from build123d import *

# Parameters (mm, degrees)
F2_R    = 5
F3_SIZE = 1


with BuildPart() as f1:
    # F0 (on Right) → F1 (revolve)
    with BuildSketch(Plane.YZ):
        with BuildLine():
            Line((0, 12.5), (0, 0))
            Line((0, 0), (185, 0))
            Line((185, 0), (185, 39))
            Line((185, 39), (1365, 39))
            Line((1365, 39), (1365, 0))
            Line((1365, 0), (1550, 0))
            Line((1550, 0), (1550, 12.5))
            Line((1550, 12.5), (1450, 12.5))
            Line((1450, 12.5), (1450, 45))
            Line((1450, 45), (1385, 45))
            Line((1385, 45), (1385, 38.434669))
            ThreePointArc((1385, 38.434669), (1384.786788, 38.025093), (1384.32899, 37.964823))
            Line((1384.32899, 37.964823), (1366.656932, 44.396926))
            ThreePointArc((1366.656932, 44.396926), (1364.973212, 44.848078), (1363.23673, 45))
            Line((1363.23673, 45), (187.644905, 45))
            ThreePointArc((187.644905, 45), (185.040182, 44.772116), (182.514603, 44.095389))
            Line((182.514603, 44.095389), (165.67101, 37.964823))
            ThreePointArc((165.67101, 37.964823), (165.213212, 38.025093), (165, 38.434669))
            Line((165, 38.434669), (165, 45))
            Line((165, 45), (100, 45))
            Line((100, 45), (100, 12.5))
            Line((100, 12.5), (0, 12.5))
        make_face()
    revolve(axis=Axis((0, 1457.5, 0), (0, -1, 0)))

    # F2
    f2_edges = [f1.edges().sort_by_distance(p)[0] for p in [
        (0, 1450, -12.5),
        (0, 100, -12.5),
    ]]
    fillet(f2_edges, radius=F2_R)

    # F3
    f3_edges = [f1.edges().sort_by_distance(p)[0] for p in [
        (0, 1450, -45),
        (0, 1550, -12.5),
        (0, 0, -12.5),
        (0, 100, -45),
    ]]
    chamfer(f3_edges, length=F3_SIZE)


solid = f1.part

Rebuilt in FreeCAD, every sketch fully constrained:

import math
import FreeCAD as App
import Part
import Sketcher
from FreeCAD import Vector
Q = App.Units.Quantity


def edges_at(feature, points):
    """Names of the edges that pass closest to the given points."""
    edges = feature.Shape.Edges
    near = lambda p: min(range(len(edges)), key=lambda i: edges[i].distToShape(Part.Vertex(*p))[0])
    return sorted({f"Edge{near(p) + 1}" for p in points})

doc = App.newDocument("Part")
body = doc.addObject("PartDesign::Body", "Body")

# Sketch on YZ plane
sketch1 = doc.addObject("Sketcher::SketchObject", "Sketch")
body.addObject(sketch1)
sketch1.AttachmentSupport = (doc.YZ_Plane, [""])
sketch1.MapMode = "FlatFace"
sketch1.addGeometry(Part.LineSegment(Vector(0, 12.5, 0), Vector(0, 0, 0)), False)
sketch1.addGeometry(Part.LineSegment(Vector(0, 0, 0), Vector(185, 0, 0)), False)
sketch1.addGeometry(Part.LineSegment(Vector(185, 0, 0), Vector(185, 39, 0)), False)
sketch1.addGeometry(Part.LineSegment(Vector(185, 39, 0), Vector(1365, 39, 0)), False)
sketch1.addGeometry(Part.LineSegment(Vector(1365, 39, 0), Vector(1365, 0, 0)), False)
sketch1.addGeometry(Part.LineSegment(Vector(1365, 0, 0), Vector(1550, 0, 0)), False)
sketch1.addGeometry(Part.LineSegment(Vector(1550, 0, 0), Vector(1550, 12.5, 0)), False)
sketch1.addGeometry(Part.LineSegment(Vector(1550, 12.5, 0), Vector(1450, 12.5, 0)), False)
sketch1.addGeometry(Part.LineSegment(Vector(1450, 12.5, 0), Vector(1450, 45, 0)), False)
sketch1.addGeometry(Part.LineSegment(Vector(1450, 45, 0), Vector(1385, 45, 0)), False)
sketch1.addGeometry(Part.LineSegment(Vector(1385, 45, 0), Vector(1385, 38.43, 0)), False)
sketch1.addGeometry(Part.ArcOfCircle(Part.Circle(Vector(1384.5, 38.43, 0), Vector(0, 0, 1), 0.5), math.radians(-110), math.radians(0)), False)
sketch1.addGeometry(Part.LineSegment(Vector(1384.33, 37.96, 0), Vector(1366.66, 44.4, 0)), False)
sketch1.addGeometry(Part.ArcOfCircle(Part.Circle(Vector(1363.24, 35, 0), Vector(0, 0, 1), 10), math.radians(70), math.radians(90)), False)
sketch1.addGeometry(Part.LineSegment(Vector(1363.24, 45, 0), Vector(187.64, 45, 0)), False)
sketch1.addGeometry(Part.ArcOfCircle(Part.Circle(Vector(187.64, 30, 0), Vector(0, 0, 1), 15), math.radians(90), math.radians(110)), False)
sketch1.addGeometry(Part.LineSegment(Vector(182.51, 44.1, 0), Vector(165.67, 37.96, 0)), False)
sketch1.addGeometry(Part.ArcOfCircle(Part.Circle(Vector(165.5, 38.43, 0), Vector(0, 0, 1), 0.5), math.radians(-180), math.radians(-70)), False)
sketch1.addGeometry(Part.LineSegment(Vector(165, 38.43, 0), Vector(165, 45, 0)), False)
sketch1.addGeometry(Part.LineSegment(Vector(165, 45, 0), Vector(100, 45, 0)), False)
sketch1.addGeometry(Part.LineSegment(Vector(100, 45, 0), Vector(100, 12.5, 0)), False)
sketch1.addGeometry(Part.LineSegment(Vector(100, 12.5, 0), Vector(0, 12.5, 0)), False)
sketch1.addConstraint(Sketcher.Constraint("Coincident", 0, 2, 1, 1))
sketch1.addConstraint(Sketcher.Constraint("Coincident", 1, 2, 2, 1))
sketch1.addConstraint(Sketcher.Constraint("Coincident", 2, 2, 3, 1))
sketch1.addConstraint(Sketcher.Constraint("Coincident", 3, 2, 4, 1))
sketch1.addConstraint(Sketcher.Constraint("Coincident", 4, 2, 5, 1))
sketch1.addConstraint(Sketcher.Constraint("Coincident", 5, 2, 6, 1))
sketch1.addConstraint(Sketcher.Constraint("Coincident", 6, 2, 7, 1))
sketch1.addConstraint(Sketcher.Constraint("Coincident", 7, 2, 8, 1))
sketch1.addConstraint(Sketcher.Constraint("Coincident", 8, 2, 9, 1))
sketch1.addConstraint(Sketcher.Constraint("Coincident", 9, 2, 10, 1))
sketch1.addConstraint(Sketcher.Constraint("Tangent", 10, 2, 11, 2))
sketch1.addConstraint(Sketcher.Constraint("Tangent", 11, 1, 12, 1))
sketch1.addConstraint(Sketcher.Constraint("Tangent", 12, 2, 13, 1))
sketch1.addConstraint(Sketcher.Constraint("Tangent", 13, 2, 14, 1))
sketch1.addConstraint(Sketcher.Constraint("Tangent", 14, 2, 15, 1))
sketch1.addConstraint(Sketcher.Constraint("Tangent", 15, 2, 16, 1))
sketch1.addConstraint(Sketcher.Constraint("Tangent", 16, 2, 17, 2))
sketch1.addConstraint(Sketcher.Constraint("Tangent", 17, 1, 18, 1))
sketch1.addConstraint(Sketcher.Constraint("Coincident", 18, 2, 19, 1))
sketch1.addConstraint(Sketcher.Constraint("Coincident", 19, 2, 20, 1))
sketch1.addConstraint(Sketcher.Constraint("Coincident", 20, 2, 21, 1))
sketch1.addConstraint(Sketcher.Constraint("Coincident", 21, 2, 0, 1))
sketch1.addConstraint(Sketcher.Constraint("Vertical", 0))
sketch1.addConstraint(Sketcher.Constraint("Horizontal", 1))
sketch1.addConstraint(Sketcher.Constraint("Vertical", 2))
sketch1.addConstraint(Sketcher.Constraint("Horizontal", 3))
sketch1.addConstraint(Sketcher.Constraint("Vertical", 4))
sketch1.addConstraint(Sketcher.Constraint("Horizontal", 5))
sketch1.addConstraint(Sketcher.Constraint("Vertical", 6))
sketch1.addConstraint(Sketcher.Constraint("Horizontal", 7))
sketch1.addConstraint(Sketcher.Constraint("Vertical", 8))
sketch1.addConstraint(Sketcher.Constraint("Horizontal", 9))
sketch1.addConstraint(Sketcher.Constraint("Vertical", 10))
sketch1.addConstraint(Sketcher.Constraint("Horizontal", 14))
sketch1.addConstraint(Sketcher.Constraint("Vertical", 18))
sketch1.addConstraint(Sketcher.Constraint("Horizontal", 19))
sketch1.addConstraint(Sketcher.Constraint("Vertical", 20))
sketch1.addConstraint(Sketcher.Constraint("Horizontal", 21))
sketch1.addConstraint(Sketcher.Constraint("Coincident", 0, 2, -1, 1))
sketch1.addConstraint(Sketcher.Constraint("Equal", 11, 17))
sketch1.addConstraint(Sketcher.Constraint("PointOnObject", 4, 2, -1))
sketch1.addConstraint(Sketcher.Constraint("Horizontal", 11, 3, 17, 3))
sketch1.addConstraint(Sketcher.Constraint("Horizontal", 9, 2, 13, 2))
sketch1.addConstraint(Sketcher.Constraint("Horizontal", 14, 2, 18, 2))
sketch1.addConstraint(Sketcher.Constraint("Horizontal", 7, 2, 20, 2))
sketch1.addConstraint(Sketcher.Constraint("Equal", 1, 5))
sketch1.addConstraint(Sketcher.Constraint("Equal", 9, 19))
sketch1.addConstraint(Sketcher.Constraint("Equal", 7, 21))
sketch1.addConstraint(Sketcher.Constraint("Radius", 11, Q("0.5 mm")))
sketch1.addConstraint(Sketcher.Constraint("DistanceX", 1, 1, 1, 2, Q("185 mm")))
sketch1.addConstraint(Sketcher.Constraint("DistanceX", 3, 1, 3, 2, Q("1180 mm")))
sketch1.addConstraint(Sketcher.Constraint("DistanceX", 7, 2, 7, 1, Q("100 mm")))
sketch1.addConstraint(Sketcher.Constraint("DistanceX", 9, 2, 9, 1, Q("65 mm")))
sketch1.addConstraint(Sketcher.Constraint("DistanceY", 2, 1, 2, 2, Q("39 mm")))
sketch1.addConstraint(Sketcher.Constraint("Angle", 12, Q("160 deg")))
sketch1.addConstraint(Sketcher.Constraint("Angle", 16, Q("-160.000001 deg")))
sketch1.addConstraint(Sketcher.Constraint("DistanceY", 0, 2, 0, 1, Q("12.5 mm")))
sketch1.addConstraint(Sketcher.Constraint("DistanceY", 8, 1, 8, 2, Q("32.5 mm")))
sketch1.addConstraint(Sketcher.Constraint("Radius", 13, Q("9.999967 mm")))
sketch1.addConstraint(Sketcher.Constraint("Radius", 15, Q("15.000004 mm")))
sketch1.addConstraint(Sketcher.Constraint("DistanceY", 10, 2, 10, 1, Q("6.565331 mm")))
revolution = doc.addObject("PartDesign::Revolution", "Revolution")
body.addObject(revolution)
revolution.Profile = sketch1
revolution.ReferenceAxis = (sketch1, ["H_Axis"])
revolution.Angle = 360
doc.recompute()

fillet = doc.addObject("PartDesign::Fillet", "Fillet")
body.addObject(fillet)
fillet.Base = (revolution, edges_at(revolution, [(0, 1450, -12.5), (0, 100, -12.5)]))
fillet.Radius = 5
doc.recompute()

chamfer = doc.addObject("PartDesign::Chamfer", "Chamfer")
body.addObject(chamfer)
chamfer.Base = (fillet, edges_at(fillet, [
    (0, 1450, -45),
    (0, 1550, -12.5),
    (0, 0, -12.5),
    (0, 100, -45),
]))
chamfer.Size = 1

doc.recompute()
